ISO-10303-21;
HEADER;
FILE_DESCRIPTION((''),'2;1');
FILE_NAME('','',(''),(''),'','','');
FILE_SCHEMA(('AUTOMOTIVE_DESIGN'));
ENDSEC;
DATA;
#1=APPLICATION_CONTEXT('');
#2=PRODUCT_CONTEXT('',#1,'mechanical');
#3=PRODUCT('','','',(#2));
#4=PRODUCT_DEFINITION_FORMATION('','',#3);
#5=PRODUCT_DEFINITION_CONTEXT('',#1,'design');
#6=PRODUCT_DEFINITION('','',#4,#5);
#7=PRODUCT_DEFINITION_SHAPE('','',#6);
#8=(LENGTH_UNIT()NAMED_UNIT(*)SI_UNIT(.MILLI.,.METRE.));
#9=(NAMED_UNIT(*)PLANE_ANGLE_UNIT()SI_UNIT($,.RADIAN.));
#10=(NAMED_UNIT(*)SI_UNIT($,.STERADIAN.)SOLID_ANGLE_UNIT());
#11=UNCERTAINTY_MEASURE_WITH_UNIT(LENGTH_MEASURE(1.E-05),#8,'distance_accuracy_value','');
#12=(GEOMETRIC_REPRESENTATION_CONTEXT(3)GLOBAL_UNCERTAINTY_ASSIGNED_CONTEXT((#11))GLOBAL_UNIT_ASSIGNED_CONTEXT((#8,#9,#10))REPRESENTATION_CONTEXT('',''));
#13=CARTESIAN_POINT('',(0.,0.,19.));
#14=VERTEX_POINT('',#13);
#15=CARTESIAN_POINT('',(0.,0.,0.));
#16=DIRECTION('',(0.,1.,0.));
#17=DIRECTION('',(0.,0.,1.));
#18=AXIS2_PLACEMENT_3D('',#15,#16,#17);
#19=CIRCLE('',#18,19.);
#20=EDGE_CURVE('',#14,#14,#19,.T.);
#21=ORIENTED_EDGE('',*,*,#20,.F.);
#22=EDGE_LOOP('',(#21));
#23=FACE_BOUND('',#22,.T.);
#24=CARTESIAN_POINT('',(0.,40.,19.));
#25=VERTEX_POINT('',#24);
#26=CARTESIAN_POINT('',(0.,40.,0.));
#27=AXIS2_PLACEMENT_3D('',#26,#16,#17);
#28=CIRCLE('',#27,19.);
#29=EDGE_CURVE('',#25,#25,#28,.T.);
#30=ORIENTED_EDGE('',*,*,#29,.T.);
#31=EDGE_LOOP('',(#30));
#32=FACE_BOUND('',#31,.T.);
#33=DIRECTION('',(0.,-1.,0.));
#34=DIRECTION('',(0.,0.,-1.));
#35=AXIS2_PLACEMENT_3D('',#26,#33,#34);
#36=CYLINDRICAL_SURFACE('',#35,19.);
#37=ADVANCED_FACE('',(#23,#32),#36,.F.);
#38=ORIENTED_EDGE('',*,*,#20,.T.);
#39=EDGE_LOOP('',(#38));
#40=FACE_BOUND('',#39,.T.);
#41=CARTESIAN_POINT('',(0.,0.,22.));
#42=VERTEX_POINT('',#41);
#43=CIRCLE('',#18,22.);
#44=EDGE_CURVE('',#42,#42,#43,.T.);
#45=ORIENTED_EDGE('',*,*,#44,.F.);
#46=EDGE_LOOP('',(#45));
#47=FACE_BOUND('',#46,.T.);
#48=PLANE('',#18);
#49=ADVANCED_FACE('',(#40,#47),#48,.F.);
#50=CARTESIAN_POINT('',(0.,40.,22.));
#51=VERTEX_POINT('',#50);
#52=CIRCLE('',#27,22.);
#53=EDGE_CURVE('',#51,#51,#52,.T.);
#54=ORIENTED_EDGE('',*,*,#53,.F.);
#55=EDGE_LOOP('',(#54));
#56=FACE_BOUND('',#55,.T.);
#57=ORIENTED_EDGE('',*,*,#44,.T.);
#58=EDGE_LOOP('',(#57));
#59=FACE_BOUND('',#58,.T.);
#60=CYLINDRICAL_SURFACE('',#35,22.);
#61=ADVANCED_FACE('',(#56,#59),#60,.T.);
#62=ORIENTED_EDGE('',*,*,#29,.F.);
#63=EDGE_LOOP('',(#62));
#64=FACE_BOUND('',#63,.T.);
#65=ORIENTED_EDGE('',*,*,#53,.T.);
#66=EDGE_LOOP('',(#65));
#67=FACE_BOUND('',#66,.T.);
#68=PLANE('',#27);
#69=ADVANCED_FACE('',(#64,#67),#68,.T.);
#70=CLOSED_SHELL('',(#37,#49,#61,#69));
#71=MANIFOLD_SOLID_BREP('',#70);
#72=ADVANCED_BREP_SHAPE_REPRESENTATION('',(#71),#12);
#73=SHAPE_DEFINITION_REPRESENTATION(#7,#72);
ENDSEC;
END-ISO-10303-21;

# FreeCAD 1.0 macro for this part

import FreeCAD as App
import Part
import Sketcher
Q = App.Units.Quantity

doc = App.newDocument("Part")
params = doc.addObject("Spreadsheet::Sheet", "Params")
for row, (alias, value) in enumerate([
    ("sketch1_diameter", "44 mm"),
    ("sketch1_diameter2", "38 mm"),
    ("pad1_length", "40 mm"),
], start=1):
    params.set(f"A{row}", alias)
    params.set(f"B{row}", "=" + value)
    params.setAlias(f"B{row}", alias)

body = doc.addObject("PartDesign::Body", "Body")

# Sketch on XZ plane
sketch1 = body.newObject("Sketcher::SketchObject", "Sketch")
sketch1.AttachmentSupport = (doc.getObject("XZ_Plane"), [""])
sketch1.MapMode = "FlatFace"
sketch1.addGeometry([
    Part.Circle(App.Vector(0, 0, 0), App.Vector(0, 0, 1), 22),
    Part.Circle(App.Vector(0, 0, 0), App.Vector(0, 0, 1), 19),
], False)
sketch1.addConstraint([
    Sketcher.Constraint("Coincident", 0, 3, -1, 1),
    Sketcher.Constraint("Coincident", 1, 3, -1, 1),
    Sketcher.Constraint("Diameter", 0, Q("44 mm")),
    Sketcher.Constraint("Diameter", 1, Q("38 mm")),
])
sketch1.setExpression("Constraints[2]", "Params.sketch1_diameter")
sketch1.setExpression("Constraints[3]", "Params.sketch1_diameter2")
pad1 = body.newObject("PartDesign::Pad", "Pad")
pad1.Profile = sketch1
pad1.setExpression("Length", "Params.pad1_length")
pad1.Reversed = True

doc.recompute()
